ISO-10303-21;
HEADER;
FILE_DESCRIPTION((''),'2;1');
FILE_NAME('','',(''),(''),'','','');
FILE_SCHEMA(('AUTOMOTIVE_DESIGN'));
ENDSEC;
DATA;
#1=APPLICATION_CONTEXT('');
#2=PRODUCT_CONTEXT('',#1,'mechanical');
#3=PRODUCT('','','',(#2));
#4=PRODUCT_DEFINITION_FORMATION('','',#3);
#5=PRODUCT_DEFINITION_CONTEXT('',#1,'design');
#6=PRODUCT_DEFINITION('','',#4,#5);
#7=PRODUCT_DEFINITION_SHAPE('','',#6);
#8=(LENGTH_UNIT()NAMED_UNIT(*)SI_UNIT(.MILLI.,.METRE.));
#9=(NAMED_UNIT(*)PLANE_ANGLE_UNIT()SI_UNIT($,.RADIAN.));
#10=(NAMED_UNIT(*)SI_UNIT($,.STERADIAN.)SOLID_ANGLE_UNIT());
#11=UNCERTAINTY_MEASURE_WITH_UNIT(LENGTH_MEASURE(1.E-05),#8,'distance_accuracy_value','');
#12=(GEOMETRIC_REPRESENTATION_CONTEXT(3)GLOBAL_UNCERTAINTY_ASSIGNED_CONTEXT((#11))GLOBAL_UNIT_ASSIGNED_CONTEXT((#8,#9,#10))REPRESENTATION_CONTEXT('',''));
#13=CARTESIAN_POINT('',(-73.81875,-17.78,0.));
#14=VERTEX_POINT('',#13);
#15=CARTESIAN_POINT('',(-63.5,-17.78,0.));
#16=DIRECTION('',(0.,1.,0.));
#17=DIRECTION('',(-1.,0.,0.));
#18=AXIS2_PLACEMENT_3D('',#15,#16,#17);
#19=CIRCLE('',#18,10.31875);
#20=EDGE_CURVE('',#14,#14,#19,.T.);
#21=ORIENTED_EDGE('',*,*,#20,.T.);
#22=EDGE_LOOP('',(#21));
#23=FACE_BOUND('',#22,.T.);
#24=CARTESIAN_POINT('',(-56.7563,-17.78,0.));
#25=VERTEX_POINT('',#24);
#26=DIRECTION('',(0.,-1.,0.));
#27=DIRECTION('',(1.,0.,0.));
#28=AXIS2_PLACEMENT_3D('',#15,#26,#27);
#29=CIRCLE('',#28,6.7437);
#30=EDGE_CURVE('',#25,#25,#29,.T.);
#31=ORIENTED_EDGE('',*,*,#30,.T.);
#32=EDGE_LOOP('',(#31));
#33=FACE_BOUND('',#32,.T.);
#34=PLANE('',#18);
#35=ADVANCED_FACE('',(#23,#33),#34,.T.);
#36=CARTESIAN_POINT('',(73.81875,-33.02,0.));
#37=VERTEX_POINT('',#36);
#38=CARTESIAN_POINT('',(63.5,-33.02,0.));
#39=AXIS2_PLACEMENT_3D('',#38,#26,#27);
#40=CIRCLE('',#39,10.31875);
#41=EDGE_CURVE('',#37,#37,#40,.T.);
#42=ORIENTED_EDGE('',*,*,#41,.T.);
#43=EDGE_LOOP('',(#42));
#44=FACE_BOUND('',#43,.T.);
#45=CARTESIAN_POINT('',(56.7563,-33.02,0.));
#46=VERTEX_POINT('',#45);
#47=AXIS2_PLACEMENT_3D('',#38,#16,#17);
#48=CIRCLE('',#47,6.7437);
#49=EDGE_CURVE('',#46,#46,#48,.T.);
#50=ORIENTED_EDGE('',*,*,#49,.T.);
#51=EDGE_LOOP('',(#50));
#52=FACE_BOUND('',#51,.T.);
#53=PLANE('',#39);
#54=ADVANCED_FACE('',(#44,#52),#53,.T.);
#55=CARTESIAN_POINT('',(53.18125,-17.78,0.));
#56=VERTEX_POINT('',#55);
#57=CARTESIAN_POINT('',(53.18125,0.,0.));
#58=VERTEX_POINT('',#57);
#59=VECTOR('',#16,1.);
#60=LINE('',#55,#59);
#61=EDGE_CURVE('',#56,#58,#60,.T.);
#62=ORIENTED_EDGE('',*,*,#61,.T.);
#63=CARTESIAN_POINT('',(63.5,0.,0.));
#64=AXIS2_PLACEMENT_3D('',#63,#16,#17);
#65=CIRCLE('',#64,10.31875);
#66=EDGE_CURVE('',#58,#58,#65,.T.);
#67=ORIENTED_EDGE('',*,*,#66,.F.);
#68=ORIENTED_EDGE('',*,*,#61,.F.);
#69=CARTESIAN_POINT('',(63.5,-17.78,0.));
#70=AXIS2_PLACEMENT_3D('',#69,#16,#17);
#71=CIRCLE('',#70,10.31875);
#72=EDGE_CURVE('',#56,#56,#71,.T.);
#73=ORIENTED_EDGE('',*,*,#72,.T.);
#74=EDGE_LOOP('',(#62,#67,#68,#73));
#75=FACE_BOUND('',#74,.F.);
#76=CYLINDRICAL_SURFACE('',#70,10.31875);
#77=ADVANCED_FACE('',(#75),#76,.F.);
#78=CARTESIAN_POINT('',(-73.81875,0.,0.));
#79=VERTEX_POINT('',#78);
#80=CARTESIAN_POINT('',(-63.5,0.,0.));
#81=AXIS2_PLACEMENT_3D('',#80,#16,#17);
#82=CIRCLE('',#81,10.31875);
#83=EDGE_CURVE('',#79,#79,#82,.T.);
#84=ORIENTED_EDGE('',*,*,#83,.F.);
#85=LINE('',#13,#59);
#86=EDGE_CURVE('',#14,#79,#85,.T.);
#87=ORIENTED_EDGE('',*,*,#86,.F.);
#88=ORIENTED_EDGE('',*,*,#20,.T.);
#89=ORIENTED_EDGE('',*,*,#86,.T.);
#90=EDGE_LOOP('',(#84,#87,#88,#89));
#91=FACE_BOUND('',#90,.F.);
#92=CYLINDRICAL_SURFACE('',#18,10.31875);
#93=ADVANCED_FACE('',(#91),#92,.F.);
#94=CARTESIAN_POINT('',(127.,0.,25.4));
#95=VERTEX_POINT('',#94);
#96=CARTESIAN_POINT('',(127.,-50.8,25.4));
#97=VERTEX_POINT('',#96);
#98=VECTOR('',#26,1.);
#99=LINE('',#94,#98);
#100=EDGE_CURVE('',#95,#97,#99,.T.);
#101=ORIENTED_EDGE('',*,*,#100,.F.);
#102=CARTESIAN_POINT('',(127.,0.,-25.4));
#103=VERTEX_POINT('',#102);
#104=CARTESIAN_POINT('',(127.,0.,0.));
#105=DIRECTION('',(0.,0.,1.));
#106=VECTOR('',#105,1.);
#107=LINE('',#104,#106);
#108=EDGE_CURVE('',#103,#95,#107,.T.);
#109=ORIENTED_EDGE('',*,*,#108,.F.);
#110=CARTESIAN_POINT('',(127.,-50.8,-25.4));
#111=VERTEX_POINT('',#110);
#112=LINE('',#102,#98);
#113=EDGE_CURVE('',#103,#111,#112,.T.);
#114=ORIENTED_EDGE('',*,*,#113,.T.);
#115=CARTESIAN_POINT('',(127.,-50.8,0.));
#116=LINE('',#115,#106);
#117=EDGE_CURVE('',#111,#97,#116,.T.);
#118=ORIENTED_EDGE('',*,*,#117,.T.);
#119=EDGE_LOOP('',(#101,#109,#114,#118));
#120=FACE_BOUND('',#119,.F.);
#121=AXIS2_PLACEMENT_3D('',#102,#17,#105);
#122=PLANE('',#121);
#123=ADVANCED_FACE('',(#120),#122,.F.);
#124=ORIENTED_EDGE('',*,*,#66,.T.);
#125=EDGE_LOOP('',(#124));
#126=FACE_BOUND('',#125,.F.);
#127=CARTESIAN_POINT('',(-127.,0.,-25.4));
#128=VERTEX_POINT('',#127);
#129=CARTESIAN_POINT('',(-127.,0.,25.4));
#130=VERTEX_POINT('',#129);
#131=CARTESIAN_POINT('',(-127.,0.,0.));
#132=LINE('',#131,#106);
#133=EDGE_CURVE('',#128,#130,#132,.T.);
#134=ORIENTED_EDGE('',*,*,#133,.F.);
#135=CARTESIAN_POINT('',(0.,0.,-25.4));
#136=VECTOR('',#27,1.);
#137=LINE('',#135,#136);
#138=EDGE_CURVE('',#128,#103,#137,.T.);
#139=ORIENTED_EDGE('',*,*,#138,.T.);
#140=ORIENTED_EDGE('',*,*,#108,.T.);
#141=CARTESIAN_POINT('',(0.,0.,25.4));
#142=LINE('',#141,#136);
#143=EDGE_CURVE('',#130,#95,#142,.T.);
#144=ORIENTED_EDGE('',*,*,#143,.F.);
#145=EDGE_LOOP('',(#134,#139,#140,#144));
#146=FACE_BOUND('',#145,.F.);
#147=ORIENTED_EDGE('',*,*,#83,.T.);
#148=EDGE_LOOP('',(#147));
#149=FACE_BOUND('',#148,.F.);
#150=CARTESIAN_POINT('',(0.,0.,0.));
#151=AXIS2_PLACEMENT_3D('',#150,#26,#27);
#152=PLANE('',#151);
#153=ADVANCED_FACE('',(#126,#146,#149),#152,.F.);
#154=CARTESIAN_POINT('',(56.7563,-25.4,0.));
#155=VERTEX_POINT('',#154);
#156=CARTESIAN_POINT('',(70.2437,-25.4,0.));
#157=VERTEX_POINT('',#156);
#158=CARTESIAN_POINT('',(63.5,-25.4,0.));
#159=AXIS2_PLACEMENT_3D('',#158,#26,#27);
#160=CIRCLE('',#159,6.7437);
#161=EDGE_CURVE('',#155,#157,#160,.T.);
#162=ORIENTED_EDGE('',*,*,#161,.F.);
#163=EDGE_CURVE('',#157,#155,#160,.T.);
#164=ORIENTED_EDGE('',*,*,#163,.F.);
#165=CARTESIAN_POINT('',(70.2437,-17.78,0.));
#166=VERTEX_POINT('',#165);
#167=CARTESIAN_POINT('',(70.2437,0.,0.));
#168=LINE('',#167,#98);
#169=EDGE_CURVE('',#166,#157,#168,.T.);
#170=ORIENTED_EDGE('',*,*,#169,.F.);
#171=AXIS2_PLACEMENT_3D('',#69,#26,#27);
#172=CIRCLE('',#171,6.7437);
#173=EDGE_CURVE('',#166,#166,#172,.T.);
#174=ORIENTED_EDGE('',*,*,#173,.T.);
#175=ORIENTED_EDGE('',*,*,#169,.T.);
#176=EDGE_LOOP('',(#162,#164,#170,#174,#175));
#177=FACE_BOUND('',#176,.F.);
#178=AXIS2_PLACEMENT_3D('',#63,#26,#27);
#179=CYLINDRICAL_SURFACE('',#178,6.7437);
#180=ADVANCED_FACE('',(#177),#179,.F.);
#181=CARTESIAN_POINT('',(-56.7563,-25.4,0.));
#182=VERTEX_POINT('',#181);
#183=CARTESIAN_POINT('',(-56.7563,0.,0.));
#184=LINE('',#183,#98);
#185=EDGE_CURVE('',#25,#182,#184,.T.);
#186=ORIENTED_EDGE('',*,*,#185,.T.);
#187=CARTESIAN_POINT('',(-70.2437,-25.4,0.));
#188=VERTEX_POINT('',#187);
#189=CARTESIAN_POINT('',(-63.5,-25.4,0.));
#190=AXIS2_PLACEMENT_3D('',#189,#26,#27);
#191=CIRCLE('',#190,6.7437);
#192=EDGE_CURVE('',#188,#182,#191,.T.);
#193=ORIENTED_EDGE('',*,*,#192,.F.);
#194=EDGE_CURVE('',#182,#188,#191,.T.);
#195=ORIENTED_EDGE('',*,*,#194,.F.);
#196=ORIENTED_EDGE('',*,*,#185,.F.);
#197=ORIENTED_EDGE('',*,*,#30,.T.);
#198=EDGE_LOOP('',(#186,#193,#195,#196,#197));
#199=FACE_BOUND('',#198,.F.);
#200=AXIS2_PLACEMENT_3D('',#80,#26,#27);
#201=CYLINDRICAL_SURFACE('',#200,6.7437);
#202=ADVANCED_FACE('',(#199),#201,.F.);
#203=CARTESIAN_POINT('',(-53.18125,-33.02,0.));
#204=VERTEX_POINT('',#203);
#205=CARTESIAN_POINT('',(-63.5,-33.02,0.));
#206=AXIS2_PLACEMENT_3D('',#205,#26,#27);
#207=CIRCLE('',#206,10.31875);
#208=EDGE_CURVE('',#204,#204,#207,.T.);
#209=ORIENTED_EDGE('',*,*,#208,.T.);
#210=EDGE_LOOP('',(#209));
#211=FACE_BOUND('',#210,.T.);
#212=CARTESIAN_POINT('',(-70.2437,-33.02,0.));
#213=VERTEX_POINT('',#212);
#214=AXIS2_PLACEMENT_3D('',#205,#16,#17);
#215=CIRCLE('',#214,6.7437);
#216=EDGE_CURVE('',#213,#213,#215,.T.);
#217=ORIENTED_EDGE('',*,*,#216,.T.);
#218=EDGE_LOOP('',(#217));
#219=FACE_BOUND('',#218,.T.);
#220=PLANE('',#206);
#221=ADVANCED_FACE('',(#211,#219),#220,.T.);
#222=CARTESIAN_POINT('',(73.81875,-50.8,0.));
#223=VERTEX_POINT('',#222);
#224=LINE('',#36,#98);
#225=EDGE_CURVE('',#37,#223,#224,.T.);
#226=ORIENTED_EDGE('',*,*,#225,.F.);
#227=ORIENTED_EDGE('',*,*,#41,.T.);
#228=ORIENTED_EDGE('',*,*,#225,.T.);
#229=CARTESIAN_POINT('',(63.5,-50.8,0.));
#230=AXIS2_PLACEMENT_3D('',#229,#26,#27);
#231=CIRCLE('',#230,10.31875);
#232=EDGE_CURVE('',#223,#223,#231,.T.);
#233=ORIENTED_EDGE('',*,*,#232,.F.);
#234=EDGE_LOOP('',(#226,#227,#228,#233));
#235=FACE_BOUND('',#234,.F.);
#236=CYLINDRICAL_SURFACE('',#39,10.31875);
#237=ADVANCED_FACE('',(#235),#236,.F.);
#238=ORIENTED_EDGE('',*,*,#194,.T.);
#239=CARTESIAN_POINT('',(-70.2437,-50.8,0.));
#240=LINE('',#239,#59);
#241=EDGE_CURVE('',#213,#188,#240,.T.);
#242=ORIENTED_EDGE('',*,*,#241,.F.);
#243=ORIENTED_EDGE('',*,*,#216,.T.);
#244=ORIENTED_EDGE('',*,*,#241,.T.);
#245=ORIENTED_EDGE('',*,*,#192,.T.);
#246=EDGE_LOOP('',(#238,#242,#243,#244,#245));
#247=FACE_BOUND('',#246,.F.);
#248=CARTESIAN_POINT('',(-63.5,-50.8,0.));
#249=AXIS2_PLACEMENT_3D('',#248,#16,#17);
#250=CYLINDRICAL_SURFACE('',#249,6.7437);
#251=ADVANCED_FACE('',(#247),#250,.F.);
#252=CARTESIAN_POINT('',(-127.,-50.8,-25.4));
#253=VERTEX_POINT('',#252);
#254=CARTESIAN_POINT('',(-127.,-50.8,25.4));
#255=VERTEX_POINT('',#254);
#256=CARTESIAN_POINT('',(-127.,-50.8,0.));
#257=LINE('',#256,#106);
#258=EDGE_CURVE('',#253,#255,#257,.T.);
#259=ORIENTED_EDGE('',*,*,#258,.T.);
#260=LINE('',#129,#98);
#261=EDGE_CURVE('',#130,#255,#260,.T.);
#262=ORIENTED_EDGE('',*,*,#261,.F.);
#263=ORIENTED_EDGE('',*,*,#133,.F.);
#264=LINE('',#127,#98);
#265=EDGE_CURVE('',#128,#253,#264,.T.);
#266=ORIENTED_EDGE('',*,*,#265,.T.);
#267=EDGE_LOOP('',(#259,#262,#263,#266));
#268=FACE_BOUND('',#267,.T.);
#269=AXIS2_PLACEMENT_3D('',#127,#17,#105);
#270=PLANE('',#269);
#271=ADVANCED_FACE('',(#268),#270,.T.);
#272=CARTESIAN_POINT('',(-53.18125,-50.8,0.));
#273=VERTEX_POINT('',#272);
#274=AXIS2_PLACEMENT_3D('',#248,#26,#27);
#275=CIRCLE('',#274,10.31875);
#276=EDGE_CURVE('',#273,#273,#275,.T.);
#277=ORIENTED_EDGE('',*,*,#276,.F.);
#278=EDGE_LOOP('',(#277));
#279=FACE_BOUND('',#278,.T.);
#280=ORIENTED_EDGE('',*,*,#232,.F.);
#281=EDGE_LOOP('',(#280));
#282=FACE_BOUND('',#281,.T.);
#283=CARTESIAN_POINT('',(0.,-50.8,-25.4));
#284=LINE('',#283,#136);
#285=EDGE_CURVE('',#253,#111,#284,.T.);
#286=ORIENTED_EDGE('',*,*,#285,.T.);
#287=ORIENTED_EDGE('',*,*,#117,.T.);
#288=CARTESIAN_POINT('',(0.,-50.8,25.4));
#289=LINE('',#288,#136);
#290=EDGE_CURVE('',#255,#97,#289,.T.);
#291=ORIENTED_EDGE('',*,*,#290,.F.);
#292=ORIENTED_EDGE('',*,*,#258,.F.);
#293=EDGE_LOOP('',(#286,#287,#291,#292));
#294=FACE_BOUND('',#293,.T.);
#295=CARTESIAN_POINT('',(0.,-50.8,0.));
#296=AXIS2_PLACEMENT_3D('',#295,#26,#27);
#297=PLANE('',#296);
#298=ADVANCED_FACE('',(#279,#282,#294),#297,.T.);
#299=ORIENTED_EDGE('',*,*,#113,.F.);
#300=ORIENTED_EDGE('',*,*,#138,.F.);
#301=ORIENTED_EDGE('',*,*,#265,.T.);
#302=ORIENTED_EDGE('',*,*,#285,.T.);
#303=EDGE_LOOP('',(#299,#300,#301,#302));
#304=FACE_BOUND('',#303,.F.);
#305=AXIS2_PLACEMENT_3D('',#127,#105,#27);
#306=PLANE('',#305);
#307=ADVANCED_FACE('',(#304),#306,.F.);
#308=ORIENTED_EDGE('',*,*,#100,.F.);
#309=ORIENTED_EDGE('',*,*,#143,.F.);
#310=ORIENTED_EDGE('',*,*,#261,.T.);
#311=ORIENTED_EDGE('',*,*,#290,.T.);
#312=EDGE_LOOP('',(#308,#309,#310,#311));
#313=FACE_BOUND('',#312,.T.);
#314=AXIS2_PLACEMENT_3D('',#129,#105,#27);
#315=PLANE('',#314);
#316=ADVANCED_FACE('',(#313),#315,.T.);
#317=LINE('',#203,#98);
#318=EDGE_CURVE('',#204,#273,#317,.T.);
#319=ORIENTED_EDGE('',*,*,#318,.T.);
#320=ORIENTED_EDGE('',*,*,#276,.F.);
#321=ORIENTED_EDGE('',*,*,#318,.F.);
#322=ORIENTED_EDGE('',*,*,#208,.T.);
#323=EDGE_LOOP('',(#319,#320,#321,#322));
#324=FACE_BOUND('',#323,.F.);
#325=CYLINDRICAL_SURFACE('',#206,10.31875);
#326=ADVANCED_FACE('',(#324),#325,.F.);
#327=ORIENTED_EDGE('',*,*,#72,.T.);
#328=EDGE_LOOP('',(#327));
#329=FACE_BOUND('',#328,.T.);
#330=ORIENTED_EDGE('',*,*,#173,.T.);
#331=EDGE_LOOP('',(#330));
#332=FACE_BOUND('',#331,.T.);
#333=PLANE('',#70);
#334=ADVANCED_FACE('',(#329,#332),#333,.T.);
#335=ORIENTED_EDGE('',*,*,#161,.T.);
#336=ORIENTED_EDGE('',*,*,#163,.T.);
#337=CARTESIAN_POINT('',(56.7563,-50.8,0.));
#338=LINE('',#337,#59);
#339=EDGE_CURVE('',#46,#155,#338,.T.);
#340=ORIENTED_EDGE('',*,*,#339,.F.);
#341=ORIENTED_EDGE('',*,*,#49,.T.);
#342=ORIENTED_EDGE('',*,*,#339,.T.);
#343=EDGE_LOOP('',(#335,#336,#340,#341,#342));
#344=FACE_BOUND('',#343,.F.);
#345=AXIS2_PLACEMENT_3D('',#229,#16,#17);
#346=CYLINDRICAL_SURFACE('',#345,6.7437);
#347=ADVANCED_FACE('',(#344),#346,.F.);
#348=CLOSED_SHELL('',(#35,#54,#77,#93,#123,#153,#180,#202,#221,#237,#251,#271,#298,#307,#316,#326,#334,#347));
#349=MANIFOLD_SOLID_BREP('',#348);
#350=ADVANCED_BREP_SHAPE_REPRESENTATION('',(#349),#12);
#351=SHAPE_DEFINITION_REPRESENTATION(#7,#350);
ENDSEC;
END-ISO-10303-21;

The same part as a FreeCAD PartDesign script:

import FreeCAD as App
import Part
import Sketcher
Q = App.Units.Quantity


def add_polygon(sketch, points):
    """Adds a closed chain of lines whose ends are joined by coincident constraints."""
    first, n = sketch.GeometryCount, len(points)
    for a, b in zip(points, points[1:] + points[:1]):
        sketch.addGeometry(Part.LineSegment(App.Vector(*a, 0), App.Vector(*b, 0)), False)
    for i in range(n):
        sketch.addConstraint(Sketcher.Constraint("Coincident", first + i, 2, first + (i + 1) % n, 1))

doc = App.newDocument("Part")
body = doc.addObject("PartDesign::Body", "Body")

sketch1 = body.newObject("Sketcher::SketchObject", "Sketch")
sketch1.AttachmentSupport = (doc.getObject("XZ_Plane"), [""])
sketch1.MapMode = "FlatFace"
add_polygon(sketch1, [(-127, 25), (-127, -25), (127, -25), (127, 25)])
sketch1.addConstraint(Sketcher.Constraint("Vertical", 0))
sketch1.addConstraint(Sketcher.Constraint("Horizontal", 1))
sketch1.addConstraint(Sketcher.Constraint("Vertical", 2))
sketch1.addConstraint(Sketcher.Constraint("Horizontal", 3))
sketch1.addConstraint(Sketcher.Constraint("Symmetric", 0, 2, 2, 2, -1, 1))
sketch1.addConstraint(Sketcher.Constraint("DistanceX", 1, 1, 1, 2, Q("10 in")))
sketch1.addConstraint(Sketcher.Constraint("DistanceY", 0, 2, 0, 1, Q("2 in")))
pad1 = body.newObject("PartDesign::Pad", "Pad")
pad1.Profile = sketch1
pad1.Length = Q("2 in")

sketch2 = body.newObject("Sketcher::SketchObject", "Sketch001")
sketch2.AttachmentSupport = (doc.getObject("XZ_Plane"), [""])
sketch2.MapMode = "FlatFace"
sketch2.addGeometry(Part.Circle(App.Vector(64, 0, 0), App.Vector(0, 0, 1), 7), False)
sketch2.addGeometry(Part.Circle(App.Vector(-64, 0, 0), App.Vector(0, 0, 1), 7), False)
sketch2.addConstraint(Sketcher.Constraint("Equal", 0, 1))
sketch2.addConstraint(Sketcher.Constraint("Symmetric", 0, 3, 1, 3, -1, 1))
sketch2.addConstraint(Sketcher.Constraint("PointOnObject", 0, 3, -1))
sketch2.addConstraint(Sketcher.Constraint("Diameter", 0, Q("0.531 in")))
sketch2.addConstraint(Sketcher.Constraint("DistanceX", 1, 3, 0, 3, Q("5 in")))
doc.recompute()
hole = body.newObject("PartDesign::Hole", "Hole")
hole.Profile = sketch2
hole.ThreadType = "None"
hole.Diameter = Q("0.531 in")
hole.DepthType = "Dimension"
hole.Depth = Q("1 in")
hole.DrillPoint = "Flat"
hole.HoleCutType = "Counterbore"
hole.HoleCutDiameter = Q("0.8125 in")
hole.HoleCutDepth = Q("0.7 in")
hole.Reversed = True

sketch3 = body.newObject("Sketcher::SketchObject", "Sketch002")
sketch3.AttachmentSupport = (doc.getObject("XZ_Plane"), [""])
sketch3.MapMode = "FlatFace"
sketch3.AttachmentOffset = App.Placement(App.Vector(0, 0, 2 * 25.4), App.Rotation())
sketch3.addGeometry(Part.Circle(App.Vector(-64, 0, 0), App.Vector(0, 0, 1), 7), False)
sketch3.addGeometry(Part.Circle(App.Vector(64, 0, 0), App.Vector(0, 0, 1), 7), False)
sketch3.addConstraint(Sketcher.Constraint("Equal", 0, 1))
sketch3.addConstraint(Sketcher.Constraint("Symmetric", 0, 3, 1, 3, -1, 1))
sketch3.addConstraint(Sketcher.Constraint("PointOnObject", 0, 3, -1))
sketch3.addConstraint(Sketcher.Constraint("Diameter", 0, Q("0.531 in")))
sketch3.addConstraint(Sketcher.Constraint("DistanceX", 0, 3, 1, 3, Q("5 in")))
doc.recompute()
hole2 = body.newObject("PartDesign::Hole", "Hole001")
hole2.Profile = sketch3
hole2.ThreadType = "None"
hole2.Diameter = Q("0.531 in")
hole2.DepthType = "Dimension"
hole2.Depth = Q("1 in")
hole2.DrillPoint = "Flat"
hole2.HoleCutType = "Counterbore"
hole2.HoleCutDiameter = Q("0.8125 in")
hole2.HoleCutDepth = Q("0.7 in")

doc.recompute()
